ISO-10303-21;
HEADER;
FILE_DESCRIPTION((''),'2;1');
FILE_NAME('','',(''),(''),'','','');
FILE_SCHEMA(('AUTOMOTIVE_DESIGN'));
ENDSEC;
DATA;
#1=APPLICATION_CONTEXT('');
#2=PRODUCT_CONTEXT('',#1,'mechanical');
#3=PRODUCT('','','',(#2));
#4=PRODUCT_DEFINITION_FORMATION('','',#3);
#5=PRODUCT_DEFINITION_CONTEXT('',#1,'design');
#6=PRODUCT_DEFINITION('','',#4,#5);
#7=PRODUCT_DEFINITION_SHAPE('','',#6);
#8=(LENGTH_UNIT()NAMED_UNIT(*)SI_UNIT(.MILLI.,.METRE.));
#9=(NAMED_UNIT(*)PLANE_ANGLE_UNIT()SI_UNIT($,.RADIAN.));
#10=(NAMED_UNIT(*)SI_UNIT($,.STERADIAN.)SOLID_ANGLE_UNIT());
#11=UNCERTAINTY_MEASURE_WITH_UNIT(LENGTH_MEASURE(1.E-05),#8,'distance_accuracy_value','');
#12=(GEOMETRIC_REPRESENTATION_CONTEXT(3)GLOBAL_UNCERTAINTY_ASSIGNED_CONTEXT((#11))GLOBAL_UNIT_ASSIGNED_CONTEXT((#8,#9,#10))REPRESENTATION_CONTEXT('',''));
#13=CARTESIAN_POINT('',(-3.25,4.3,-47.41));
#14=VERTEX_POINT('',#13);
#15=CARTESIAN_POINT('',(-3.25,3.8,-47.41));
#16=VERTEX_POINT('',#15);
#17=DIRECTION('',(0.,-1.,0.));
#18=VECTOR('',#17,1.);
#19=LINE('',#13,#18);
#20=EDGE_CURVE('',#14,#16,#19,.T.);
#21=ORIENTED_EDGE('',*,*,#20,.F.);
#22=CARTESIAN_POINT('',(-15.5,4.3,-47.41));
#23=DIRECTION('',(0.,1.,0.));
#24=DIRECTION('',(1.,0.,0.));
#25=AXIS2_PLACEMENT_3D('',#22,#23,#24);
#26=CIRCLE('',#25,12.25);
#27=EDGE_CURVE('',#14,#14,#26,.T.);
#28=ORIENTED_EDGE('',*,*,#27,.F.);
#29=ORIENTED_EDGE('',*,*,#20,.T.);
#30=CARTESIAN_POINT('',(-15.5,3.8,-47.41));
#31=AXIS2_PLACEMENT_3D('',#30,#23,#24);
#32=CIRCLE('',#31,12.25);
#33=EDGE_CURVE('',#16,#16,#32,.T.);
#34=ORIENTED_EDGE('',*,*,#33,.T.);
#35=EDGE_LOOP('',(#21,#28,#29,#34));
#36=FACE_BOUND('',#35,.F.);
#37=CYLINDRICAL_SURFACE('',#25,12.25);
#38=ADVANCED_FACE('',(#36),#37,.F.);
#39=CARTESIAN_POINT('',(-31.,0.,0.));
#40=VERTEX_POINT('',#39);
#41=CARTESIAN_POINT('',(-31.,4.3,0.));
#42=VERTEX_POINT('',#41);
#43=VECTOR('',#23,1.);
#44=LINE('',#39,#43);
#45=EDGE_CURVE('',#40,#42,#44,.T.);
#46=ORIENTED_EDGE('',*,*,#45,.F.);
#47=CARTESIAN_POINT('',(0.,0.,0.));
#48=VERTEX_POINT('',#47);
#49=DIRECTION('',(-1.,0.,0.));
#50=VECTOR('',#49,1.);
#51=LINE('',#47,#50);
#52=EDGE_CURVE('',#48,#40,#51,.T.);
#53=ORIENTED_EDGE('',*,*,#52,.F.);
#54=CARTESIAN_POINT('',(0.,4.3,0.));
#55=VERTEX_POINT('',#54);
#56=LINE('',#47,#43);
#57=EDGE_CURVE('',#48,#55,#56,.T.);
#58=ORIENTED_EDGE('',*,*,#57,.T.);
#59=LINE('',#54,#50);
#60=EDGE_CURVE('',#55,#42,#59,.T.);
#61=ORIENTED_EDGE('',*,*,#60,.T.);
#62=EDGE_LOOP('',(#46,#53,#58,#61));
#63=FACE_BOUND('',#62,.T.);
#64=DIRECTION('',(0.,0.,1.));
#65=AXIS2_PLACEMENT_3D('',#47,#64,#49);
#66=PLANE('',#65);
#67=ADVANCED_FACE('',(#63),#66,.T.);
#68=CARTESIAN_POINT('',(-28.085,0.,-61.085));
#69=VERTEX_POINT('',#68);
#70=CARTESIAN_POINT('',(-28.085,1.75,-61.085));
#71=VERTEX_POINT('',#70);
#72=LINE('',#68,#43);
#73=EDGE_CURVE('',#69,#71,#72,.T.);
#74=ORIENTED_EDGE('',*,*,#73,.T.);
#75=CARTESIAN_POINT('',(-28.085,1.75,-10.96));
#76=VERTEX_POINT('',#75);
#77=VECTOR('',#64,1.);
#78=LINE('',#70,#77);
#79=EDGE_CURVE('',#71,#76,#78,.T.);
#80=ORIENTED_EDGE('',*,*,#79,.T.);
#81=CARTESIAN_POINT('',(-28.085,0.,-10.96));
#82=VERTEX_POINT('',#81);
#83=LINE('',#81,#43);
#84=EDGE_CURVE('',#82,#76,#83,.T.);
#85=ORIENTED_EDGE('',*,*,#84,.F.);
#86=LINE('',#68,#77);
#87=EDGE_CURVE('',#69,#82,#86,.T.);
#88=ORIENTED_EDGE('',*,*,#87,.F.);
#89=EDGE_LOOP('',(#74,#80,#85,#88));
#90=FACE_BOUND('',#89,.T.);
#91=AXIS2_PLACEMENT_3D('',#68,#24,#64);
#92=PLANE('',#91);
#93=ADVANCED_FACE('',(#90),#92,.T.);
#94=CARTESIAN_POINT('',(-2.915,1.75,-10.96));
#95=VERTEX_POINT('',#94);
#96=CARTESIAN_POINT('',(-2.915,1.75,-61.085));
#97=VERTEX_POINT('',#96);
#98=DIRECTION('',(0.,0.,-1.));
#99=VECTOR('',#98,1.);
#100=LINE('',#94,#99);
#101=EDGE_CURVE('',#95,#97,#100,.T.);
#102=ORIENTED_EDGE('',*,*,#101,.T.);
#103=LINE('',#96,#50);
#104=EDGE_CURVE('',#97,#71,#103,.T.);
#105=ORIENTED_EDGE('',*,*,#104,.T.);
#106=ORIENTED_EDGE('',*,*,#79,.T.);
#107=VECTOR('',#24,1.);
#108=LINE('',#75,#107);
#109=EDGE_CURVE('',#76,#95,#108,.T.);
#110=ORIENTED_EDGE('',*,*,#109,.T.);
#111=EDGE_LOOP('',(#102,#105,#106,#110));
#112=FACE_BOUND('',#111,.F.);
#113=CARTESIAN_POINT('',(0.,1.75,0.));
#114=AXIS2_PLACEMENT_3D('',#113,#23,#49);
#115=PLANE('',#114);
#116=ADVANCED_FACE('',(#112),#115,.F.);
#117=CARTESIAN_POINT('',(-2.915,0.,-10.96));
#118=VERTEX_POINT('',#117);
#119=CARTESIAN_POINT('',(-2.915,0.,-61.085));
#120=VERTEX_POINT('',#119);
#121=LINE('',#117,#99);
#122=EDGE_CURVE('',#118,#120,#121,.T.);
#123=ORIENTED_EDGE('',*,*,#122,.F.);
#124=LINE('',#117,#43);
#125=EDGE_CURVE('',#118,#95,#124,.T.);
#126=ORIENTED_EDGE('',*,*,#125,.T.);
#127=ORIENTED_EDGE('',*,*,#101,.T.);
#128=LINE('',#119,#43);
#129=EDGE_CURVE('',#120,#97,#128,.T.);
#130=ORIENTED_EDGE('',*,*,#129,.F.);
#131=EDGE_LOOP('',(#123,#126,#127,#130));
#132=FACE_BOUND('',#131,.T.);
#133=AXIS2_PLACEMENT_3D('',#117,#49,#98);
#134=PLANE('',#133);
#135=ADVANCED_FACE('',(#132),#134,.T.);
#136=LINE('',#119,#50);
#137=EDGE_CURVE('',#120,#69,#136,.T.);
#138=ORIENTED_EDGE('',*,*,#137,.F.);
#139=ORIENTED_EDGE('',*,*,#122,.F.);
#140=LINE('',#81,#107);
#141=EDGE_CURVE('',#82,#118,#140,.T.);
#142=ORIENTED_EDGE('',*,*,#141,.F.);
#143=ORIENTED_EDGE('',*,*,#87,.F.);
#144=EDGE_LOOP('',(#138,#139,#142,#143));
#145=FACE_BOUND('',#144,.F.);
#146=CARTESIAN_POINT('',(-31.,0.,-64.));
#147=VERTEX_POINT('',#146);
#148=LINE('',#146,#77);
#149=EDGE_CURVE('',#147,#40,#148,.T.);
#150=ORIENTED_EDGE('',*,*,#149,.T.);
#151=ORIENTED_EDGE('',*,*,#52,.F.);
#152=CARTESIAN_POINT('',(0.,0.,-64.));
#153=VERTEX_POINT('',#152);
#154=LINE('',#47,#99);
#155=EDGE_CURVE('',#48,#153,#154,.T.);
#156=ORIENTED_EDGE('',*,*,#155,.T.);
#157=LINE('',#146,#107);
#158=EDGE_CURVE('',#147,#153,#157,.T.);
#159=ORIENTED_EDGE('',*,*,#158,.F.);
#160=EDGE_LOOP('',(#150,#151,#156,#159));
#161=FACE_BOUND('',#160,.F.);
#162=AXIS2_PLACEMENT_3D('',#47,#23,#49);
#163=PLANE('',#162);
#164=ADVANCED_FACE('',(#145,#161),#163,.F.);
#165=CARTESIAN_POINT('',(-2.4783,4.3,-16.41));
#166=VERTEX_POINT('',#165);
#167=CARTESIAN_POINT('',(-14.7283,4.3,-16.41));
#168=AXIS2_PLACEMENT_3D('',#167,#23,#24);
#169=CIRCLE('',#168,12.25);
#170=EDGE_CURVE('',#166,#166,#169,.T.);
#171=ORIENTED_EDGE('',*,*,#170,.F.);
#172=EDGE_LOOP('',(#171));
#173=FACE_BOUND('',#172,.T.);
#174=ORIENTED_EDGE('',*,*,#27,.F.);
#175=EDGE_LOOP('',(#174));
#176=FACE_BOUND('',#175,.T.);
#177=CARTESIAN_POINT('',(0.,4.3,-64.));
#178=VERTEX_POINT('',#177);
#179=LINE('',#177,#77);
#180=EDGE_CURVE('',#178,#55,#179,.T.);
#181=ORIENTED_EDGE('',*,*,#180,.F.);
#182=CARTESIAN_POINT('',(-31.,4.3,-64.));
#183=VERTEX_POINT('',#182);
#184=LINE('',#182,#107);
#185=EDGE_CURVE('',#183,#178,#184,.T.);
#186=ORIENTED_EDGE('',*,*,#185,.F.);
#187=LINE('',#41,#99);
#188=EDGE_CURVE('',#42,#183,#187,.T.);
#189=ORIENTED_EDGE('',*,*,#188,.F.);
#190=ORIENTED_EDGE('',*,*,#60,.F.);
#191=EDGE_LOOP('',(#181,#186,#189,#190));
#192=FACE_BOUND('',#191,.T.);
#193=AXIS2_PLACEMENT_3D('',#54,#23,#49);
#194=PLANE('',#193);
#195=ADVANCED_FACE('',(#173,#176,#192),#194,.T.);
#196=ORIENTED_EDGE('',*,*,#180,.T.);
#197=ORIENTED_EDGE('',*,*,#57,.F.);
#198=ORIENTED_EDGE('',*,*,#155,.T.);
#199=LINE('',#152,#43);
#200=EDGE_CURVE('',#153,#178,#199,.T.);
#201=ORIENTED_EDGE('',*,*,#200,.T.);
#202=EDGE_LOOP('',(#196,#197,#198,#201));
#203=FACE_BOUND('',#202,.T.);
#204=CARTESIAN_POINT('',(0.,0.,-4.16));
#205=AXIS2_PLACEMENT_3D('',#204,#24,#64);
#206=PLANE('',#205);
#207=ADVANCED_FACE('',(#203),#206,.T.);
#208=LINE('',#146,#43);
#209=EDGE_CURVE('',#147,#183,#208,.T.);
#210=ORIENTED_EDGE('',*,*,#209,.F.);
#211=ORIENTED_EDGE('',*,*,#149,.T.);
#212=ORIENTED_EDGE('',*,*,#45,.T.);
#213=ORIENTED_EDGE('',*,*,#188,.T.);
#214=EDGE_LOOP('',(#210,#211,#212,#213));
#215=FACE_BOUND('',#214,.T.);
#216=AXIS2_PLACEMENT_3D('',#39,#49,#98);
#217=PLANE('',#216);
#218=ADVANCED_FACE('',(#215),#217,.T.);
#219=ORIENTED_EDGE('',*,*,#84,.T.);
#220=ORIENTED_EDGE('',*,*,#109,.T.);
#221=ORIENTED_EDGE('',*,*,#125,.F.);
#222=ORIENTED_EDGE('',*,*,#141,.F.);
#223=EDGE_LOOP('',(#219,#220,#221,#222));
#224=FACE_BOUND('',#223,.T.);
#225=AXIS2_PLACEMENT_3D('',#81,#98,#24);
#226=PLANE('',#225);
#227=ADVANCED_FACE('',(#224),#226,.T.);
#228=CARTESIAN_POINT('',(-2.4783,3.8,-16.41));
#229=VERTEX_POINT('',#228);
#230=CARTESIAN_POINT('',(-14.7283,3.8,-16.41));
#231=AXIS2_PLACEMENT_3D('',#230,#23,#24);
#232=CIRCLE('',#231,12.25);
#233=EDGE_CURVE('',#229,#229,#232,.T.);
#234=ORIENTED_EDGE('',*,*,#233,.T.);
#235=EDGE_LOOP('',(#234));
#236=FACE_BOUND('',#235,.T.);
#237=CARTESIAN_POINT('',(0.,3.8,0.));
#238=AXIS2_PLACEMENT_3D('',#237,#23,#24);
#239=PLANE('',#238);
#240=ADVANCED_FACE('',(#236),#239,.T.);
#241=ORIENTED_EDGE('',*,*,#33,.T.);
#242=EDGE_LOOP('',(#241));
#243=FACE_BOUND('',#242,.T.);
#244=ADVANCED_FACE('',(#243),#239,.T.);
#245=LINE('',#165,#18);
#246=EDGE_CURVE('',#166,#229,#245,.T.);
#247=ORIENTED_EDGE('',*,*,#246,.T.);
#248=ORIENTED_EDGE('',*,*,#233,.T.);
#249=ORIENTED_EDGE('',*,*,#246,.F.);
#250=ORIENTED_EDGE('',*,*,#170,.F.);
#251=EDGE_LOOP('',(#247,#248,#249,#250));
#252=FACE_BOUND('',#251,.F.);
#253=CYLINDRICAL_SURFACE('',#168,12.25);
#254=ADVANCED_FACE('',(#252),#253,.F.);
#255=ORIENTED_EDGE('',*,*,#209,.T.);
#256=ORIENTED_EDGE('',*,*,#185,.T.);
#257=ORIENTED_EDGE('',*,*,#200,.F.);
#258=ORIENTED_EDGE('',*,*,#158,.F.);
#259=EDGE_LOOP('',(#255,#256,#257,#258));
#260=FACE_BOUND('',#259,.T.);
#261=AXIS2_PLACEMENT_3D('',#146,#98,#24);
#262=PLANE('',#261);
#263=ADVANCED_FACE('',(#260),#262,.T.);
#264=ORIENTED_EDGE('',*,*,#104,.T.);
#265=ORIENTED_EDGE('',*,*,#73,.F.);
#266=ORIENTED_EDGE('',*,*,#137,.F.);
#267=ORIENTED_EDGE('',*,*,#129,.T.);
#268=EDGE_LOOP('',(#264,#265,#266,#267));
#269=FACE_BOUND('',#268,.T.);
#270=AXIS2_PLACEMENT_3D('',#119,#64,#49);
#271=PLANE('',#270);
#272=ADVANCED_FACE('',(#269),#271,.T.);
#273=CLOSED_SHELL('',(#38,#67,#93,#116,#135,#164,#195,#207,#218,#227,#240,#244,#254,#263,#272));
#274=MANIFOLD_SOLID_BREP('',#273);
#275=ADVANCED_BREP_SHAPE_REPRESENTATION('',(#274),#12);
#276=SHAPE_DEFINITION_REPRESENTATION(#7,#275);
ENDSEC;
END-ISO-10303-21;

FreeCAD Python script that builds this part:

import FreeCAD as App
import Part
import Sketcher
Q = App.Units.Quantity


def add_polygon(sketch, points):
    """Adds a closed chain of lines whose ends are joined by coincident constraints."""
    first, n = sketch.GeometryCount, len(points)
    for a, b in zip(points, points[1:] + points[:1]):
        sketch.addGeometry(Part.LineSegment(App.Vector(*a, 0), App.Vector(*b, 0)), False)
    for i in range(n):
        sketch.addConstraint(Sketcher.Constraint("Coincident", first + i, 2, first + (i + 1) % n, 1))

doc = App.newDocument("Part")
body = doc.addObject("PartDesign::Body", "Body")

sketch1 = body.newObject("Sketcher::SketchObject", "Sketch")
sketch1.AttachmentSupport = (doc.getObject("XZ_Plane"), [""])
sketch1.MapMode = "FlatFace"
add_polygon(sketch1, [(-31, 0), (0, 0), (0, -64), (-31, -64)])
sketch1.addConstraint([
    Sketcher.Constraint("Horizontal", 0),
    Sketcher.Constraint("Vertical", 1),
    Sketcher.Constraint("Horizontal", 2),
    Sketcher.Constraint("Vertical", 3),
    Sketcher.Constraint("Coincident", 0, 2, -1, 1),
    Sketcher.Constraint("DistanceX", 0, 1, 0, 2, Q("31 mm")),
    Sketcher.Constraint("DistanceY", 1, 2, 1, 1, Q("64 mm")),
])
pad1 = body.newObject("PartDesign::Pad", "Pad")
pad1.Profile = sketch1
pad1.Length = 4.3
pad1.Reversed = True

sketch2 = body.newObject("Sketcher::SketchObject", "Sketch001")
sketch2.AttachmentSupport = (doc.getObject("XZ_Plane"), [""])
sketch2.MapMode = "FlatFace"
add_polygon(sketch2, [(-28, -11), (-3, -11), (-3, -61), (-28, -61)])
sketch2.addConstraint([
    Sketcher.Constraint("Horizontal", 0),
    Sketcher.Constraint("Vertical", 1),
    Sketcher.Constraint("Horizontal", 2),
    Sketcher.Constraint("Vertical", 3),
    Sketcher.Constraint("DistanceX", 0, 1, 0, 2, Q("25.17 mm")),
    Sketcher.Constraint("DistanceY", 1, 2, 1, 1, Q("50.125 mm")),
    Sketcher.Constraint("DistanceY", 0, 2, -1, 1, Q("10.96 mm")),
    Sketcher.Constraint("DistanceX", 0, 2, -1, 1, Q("2.915 mm")),
])
pocket1 = body.newObject("PartDesign::Pocket", "Pocket")
pocket1.Profile = sketch2
pocket1.Length = 1.75

sketch3 = body.newObject("Sketcher::SketchObject", "Sketch002")
sketch3.AttachmentSupport = (doc.getObject("XZ_Plane"), [""])
sketch3.MapMode = "FlatFace"
sketch3.AttachmentOffset = App.Placement(App.Vector(0, 0, -4.3), App.Rotation())
sketch3.addGeometry([
    Part.Circle(App.Vector(-16, -47, 0), App.Vector(0, 0, 1), 12),
    Part.Circle(App.Vector(-15, -16, 0), App.Vector(0, 0, 1), 12),
], False)
sketch3.addConstraint([
    Sketcher.Constraint("Equal", 0, 1),
    Sketcher.Constraint("Diameter", 0, Q("24.5 mm")),
    Sketcher.Constraint("DistanceY", 0, 3, 1, 3, Q("31 mm")),
    Sketcher.Constraint("DistanceX", 0, 3, -1, 1, Q("15.5 mm")),
    Sketcher.Constraint("DistanceY", 0, 3, -1, 1, Q("47.41 mm")),
    Sketcher.Constraint("DistanceX", 1, 3, -1, 1, Q("14.7283 mm")),
])
pocket2 = body.newObject("PartDesign::Pocket", "Pocket001")
pocket2.Profile = sketch3
pocket2.Length = 0.5
pocket2.Reversed = True

doc.recompute()
